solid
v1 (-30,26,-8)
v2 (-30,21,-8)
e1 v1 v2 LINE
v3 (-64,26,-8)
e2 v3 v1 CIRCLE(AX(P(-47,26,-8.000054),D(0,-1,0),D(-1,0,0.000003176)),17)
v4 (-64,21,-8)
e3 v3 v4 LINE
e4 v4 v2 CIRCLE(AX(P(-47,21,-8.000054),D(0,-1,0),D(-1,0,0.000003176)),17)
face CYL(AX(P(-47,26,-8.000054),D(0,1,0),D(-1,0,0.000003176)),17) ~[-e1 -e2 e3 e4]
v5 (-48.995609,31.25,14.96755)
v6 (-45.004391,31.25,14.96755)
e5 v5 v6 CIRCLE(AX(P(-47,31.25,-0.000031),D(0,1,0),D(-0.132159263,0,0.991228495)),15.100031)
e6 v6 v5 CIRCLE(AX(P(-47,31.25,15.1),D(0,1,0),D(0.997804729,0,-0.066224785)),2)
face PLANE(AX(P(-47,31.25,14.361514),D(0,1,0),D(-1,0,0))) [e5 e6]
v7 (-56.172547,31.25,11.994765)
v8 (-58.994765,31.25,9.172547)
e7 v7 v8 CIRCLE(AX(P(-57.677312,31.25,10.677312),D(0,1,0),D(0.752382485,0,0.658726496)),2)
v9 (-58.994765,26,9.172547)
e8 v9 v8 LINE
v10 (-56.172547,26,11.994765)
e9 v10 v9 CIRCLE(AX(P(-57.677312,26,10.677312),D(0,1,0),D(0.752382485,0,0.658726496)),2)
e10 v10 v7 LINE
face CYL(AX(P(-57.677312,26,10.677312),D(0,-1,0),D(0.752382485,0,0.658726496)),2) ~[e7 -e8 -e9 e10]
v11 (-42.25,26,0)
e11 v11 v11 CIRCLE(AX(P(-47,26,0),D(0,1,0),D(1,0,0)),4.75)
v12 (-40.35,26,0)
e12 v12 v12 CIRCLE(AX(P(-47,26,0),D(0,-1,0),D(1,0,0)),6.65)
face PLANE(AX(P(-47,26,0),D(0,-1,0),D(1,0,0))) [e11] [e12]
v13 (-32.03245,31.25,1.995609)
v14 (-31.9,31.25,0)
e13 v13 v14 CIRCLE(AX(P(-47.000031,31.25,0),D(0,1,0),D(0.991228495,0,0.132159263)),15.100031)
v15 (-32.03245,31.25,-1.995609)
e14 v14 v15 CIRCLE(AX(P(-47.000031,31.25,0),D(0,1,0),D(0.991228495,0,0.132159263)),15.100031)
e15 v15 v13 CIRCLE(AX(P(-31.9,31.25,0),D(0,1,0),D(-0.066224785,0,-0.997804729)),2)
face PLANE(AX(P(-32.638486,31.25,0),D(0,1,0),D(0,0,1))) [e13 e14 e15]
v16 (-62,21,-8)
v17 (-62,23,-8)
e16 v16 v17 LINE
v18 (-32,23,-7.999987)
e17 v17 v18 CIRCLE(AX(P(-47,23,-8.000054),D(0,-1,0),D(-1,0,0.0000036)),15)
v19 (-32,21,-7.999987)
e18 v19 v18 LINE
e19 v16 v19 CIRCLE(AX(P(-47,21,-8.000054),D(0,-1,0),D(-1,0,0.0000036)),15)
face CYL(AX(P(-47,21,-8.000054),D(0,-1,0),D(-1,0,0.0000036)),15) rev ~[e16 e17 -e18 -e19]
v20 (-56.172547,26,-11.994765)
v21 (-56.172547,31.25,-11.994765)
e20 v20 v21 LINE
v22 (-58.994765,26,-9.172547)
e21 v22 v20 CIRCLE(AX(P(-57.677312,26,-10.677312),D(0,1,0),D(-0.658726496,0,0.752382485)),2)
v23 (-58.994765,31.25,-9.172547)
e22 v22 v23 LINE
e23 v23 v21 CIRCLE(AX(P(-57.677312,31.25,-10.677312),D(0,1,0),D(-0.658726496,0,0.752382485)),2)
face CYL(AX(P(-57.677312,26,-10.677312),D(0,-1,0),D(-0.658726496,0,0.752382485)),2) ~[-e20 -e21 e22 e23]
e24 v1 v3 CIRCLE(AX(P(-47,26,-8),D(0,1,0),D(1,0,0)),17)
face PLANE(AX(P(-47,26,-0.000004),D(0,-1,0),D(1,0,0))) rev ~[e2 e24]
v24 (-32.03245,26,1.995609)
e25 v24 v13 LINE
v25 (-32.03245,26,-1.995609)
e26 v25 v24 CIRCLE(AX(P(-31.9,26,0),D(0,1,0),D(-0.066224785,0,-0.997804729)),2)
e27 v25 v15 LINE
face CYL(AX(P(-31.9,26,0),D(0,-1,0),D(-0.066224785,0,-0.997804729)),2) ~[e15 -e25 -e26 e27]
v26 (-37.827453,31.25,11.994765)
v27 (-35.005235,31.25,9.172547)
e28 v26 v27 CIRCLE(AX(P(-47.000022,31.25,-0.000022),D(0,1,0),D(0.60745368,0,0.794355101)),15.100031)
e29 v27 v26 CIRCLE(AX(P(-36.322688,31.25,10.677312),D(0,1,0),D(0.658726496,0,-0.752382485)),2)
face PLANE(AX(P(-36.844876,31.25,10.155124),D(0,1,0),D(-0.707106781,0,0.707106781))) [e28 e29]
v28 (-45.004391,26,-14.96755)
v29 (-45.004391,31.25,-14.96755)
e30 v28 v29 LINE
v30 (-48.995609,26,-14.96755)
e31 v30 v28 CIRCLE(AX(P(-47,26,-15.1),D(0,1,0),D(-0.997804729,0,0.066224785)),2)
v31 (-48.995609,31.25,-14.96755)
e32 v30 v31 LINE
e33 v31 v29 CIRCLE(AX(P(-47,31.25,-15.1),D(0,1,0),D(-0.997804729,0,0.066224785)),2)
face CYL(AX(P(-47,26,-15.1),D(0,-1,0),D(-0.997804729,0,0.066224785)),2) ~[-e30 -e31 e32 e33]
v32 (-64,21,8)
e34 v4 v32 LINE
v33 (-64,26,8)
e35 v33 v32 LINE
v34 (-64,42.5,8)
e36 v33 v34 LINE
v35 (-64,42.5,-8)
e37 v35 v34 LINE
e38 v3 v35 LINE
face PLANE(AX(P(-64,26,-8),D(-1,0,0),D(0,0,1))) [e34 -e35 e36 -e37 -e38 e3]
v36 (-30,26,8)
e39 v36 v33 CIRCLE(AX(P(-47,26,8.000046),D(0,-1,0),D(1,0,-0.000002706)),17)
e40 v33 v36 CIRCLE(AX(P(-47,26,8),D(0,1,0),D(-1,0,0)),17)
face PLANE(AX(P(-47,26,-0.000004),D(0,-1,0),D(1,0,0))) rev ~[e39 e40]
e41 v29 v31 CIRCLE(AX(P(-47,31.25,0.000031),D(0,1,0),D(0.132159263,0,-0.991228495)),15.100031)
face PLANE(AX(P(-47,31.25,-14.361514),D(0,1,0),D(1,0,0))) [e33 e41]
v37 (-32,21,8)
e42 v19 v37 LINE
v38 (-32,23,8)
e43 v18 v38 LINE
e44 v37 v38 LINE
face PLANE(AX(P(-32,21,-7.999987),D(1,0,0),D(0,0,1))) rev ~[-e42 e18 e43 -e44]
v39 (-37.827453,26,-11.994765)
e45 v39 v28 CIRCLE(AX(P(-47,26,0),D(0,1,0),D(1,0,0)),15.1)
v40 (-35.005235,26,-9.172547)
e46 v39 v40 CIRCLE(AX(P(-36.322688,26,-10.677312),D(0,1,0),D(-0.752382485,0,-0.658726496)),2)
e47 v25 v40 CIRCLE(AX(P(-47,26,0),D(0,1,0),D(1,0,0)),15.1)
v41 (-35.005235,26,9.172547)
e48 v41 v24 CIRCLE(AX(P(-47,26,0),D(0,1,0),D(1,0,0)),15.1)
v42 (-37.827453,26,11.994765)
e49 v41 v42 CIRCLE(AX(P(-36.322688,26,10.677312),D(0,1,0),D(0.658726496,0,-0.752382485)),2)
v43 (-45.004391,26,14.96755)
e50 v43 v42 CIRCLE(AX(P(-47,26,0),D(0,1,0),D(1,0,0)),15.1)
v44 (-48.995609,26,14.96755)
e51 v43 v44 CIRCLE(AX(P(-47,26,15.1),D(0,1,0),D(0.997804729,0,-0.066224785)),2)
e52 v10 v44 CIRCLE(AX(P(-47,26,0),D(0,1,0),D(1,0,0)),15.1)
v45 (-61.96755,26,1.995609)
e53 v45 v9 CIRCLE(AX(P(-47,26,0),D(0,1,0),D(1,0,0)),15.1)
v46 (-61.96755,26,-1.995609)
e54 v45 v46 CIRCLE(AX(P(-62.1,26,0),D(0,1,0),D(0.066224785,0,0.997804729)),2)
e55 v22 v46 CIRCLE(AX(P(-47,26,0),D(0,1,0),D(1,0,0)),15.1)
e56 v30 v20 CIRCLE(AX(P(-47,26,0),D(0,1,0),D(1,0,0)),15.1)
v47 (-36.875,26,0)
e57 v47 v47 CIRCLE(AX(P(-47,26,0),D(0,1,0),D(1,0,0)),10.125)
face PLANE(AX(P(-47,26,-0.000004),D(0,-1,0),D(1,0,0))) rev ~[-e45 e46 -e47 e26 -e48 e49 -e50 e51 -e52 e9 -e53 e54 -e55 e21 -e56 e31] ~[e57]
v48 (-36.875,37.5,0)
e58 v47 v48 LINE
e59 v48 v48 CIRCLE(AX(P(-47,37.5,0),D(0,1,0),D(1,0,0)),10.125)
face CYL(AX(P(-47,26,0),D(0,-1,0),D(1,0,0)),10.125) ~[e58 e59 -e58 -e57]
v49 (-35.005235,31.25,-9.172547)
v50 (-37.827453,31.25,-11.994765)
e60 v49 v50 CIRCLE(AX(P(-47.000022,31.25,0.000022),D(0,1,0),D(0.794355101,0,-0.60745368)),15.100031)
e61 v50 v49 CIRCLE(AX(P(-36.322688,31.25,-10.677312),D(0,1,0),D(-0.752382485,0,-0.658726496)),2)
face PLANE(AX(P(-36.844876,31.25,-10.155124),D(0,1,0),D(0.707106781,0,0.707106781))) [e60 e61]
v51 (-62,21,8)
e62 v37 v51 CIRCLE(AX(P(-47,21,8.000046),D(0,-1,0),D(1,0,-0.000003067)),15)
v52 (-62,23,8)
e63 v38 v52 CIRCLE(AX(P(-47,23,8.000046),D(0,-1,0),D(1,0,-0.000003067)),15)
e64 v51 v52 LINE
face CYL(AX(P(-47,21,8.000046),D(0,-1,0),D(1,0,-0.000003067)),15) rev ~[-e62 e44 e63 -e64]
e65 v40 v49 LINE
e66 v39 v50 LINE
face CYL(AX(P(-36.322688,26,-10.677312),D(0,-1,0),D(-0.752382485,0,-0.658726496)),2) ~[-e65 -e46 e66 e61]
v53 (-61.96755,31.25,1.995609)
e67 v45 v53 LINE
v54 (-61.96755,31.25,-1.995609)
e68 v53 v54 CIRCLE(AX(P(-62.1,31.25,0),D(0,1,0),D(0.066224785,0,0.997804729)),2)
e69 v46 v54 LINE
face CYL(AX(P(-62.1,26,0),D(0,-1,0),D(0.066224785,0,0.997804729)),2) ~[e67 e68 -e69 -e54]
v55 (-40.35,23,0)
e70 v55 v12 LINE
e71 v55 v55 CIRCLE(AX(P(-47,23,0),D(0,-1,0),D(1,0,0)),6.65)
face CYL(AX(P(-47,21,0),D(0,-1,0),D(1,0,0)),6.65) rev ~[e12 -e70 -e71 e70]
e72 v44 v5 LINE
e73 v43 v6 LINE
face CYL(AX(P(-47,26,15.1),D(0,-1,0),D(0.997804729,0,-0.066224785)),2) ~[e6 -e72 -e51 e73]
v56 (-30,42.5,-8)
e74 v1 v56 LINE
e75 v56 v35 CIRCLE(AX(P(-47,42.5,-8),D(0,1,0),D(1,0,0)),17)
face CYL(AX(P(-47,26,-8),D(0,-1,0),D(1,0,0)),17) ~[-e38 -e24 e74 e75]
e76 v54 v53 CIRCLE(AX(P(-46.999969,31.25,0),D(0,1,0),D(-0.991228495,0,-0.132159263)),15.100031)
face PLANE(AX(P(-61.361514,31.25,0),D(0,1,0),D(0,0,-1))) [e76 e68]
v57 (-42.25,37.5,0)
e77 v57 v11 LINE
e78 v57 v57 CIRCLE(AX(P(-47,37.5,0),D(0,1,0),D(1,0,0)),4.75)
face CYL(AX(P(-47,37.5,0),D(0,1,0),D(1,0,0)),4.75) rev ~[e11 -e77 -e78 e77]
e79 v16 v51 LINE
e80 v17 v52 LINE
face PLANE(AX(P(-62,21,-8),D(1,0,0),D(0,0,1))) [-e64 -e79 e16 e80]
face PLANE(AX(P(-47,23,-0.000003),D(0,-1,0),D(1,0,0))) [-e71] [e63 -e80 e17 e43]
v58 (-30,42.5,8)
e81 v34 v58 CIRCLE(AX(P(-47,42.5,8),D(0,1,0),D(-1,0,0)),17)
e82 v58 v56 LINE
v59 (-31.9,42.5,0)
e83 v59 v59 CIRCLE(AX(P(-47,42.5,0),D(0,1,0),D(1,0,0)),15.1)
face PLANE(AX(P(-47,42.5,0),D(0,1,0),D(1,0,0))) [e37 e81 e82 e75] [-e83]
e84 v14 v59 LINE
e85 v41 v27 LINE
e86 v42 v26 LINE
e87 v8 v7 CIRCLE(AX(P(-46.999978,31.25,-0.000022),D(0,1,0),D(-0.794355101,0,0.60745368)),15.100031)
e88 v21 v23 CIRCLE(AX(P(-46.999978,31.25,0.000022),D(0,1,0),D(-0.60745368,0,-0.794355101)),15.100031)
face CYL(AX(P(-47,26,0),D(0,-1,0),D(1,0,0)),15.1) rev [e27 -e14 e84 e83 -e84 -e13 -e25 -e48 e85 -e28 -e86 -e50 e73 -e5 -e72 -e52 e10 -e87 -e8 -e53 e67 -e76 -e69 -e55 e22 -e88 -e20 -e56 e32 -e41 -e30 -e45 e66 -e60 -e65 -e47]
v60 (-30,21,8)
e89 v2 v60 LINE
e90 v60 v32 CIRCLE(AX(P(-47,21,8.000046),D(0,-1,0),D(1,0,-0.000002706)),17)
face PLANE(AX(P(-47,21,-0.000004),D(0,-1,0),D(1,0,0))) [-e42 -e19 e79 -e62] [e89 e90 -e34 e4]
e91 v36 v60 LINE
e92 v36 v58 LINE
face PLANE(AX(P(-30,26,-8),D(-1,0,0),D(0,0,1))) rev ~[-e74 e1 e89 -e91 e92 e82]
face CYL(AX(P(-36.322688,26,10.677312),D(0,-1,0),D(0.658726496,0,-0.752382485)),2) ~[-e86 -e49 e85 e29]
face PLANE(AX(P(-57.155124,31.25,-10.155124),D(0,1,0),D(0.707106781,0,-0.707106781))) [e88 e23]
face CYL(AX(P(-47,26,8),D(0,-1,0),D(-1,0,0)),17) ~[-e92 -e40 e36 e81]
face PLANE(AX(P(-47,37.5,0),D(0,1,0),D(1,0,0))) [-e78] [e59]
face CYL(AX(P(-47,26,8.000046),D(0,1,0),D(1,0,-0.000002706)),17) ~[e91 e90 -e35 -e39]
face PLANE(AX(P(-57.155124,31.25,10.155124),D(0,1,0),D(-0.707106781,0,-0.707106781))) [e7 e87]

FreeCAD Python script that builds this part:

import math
import FreeCAD as App
import Part
import Sketcher
from FreeCAD import Vector

doc = App.newDocument("Part")
params = doc.addObject("Spreadsheet::Sheet", "Params")
for row, (alias, value) in enumerate([
    ("sketch1_radius", "17 mm"),
    ("sketch1_diameter", "30.2 mm"),
    ("sketch1_height", "16 mm"),
    ("pad1_length", "16.5 mm"),
    ("sketch2_radius", "2 mm"),
    ("pad2_length", "5.25 mm"),
    ("sketch3_radius", "17 mm"),
    ("sketch3_height", "16 mm"),
    ("pad3_length", "5 mm"),
    ("sketch4_diameter", "20.25 mm"),
    ("pad4_length", "11.5 mm"),
    ("sketch5_diameter", "9.5 mm"),
    ("sketch6_diameter", "13.3 mm"),
    ("pocket2_length", "5 mm"),
    ("sketch7_radius", "15 mm"),
    ("sketch7_height", "16 mm"),
    ("pocket3_length", "2 mm"),
], start=1):
    params.set(f"A{row}", alias)
    params.set(f"B{row}", "=" + value)
    params.setAlias(f"B{row}", alias)

body = doc.addObject("PartDesign::Body", "Body")

sketch1 = body.newObject("Sketcher::SketchObject", "Sketch")
sketch1.AttachmentSupport = (doc.getObject("XY_Plane"), [""])
sketch1.MapMode = "FlatFace"
sketch1.addGeometry([
    Part.ArcOfCircle(Part.Circle(Vector(0, 8, 0), Vector(0, 0, 1), 17), math.radians(0), math.radians(180)),
    Part.LineSegment(Vector(-17, 8, 0), Vector(-17, -8, 0)),
    Part.ArcOfCircle(Part.Circle(Vector(0, -8, 0), Vector(0, 0, 1), 17), math.radians(180), math.radians(360)),
    Part.LineSegment(Vector(17, -8, 0), Vector(17, 8, 0)),
    Part.Circle(Vector(0, 0, 0), Vector(0, 0, 1), 15),
], False)
sketch1.addConstraint([
    Sketcher.Constraint("Tangent", 0, 2, 1, 1),
    Sketcher.Constraint("Tangent", 1, 2, 2, 1),
    Sketcher.Constraint("Tangent", 2, 2, 3, 1),
    Sketcher.Constraint("Tangent", 3, 2, 0, 1),
    Sketcher.Constraint("Vertical", 1),
    Sketcher.Constraint("Vertical", 3),
    Sketcher.Constraint("Coincident", 4, 3, -1, 1),
    Sketcher.Constraint("Symmetric", 0, 3, 2, 3, -1, 1),
    Sketcher.Constraint("Radius", 0, 17.0),
    Sketcher.Constraint("Diameter", 4, 30.2),
    Sketcher.Constraint("DistanceY", 1, 2, 1, 1, 16.0),
])
sketch1.setExpression("Constraints[8]", "Params.sketch1_radius")
sketch1.setExpression("Constraints[9]", "Params.sketch1_diameter")
sketch1.setExpression("Constraints[10]", "Params.sketch1_height")
pad1 = body.newObject("PartDesign::Pad", "Pad")
pad1.Profile = sketch1
pad1.setExpression("Length", "Params.pad1_length")

sketch2 = body.newObject("Sketcher::SketchObject", "Sketch001")
sketch2.AttachmentSupport = (doc.getObject("XY_Plane"), [""])
sketch2.MapMode = "FlatFace"
sketch2.addGeometry([
    Part.ArcOfCircle(Part.Circle(Vector(0, 0, 0), Vector(0, 0, 1), 15.1), math.radians(82.41), math.radians(97.59)),
    Part.ArcOfCircle(Part.Circle(Vector(0, 15.1, 0), Vector(0, 0, 1), 2), math.radians(-176), math.radians(-4)),
], False)
sketch2.addConstraint([
    Sketcher.Constraint("Coincident", 0, 1, 1, 2),
    Sketcher.Constraint("Coincident", 1, 1, 0, 2),
    Sketcher.Constraint("Symmetric", 0, 1, 1, 1, -2),
    Sketcher.Constraint("Radius", 1, 2.0),
    Sketcher.Constraint("DistanceY", -1, 1, 1, 3, 15.1),
    Sketcher.Constraint("Radius", 0, 15.100031),
    Sketcher.Constraint("DistanceX", -1, 1, 0, 1, 1.995609),
])
sketch2.setExpression("Constraints[3]", "Params.sketch2_radius")
pad2 = body.newObject("PartDesign::Pad", "Pad001")
pad2.Profile = sketch2
pad2.setExpression("Length", "Params.pad2_length")
doc.recompute()

polarpattern = body.newObject("PartDesign::PolarPattern", "PolarPattern")
polarpattern.Originals = [pad2]
polarpattern.Axis = (doc.getObject("Z_Axis"), [""])
polarpattern.Angle = 360
polarpattern.Occurrences = 8
body.Tip = polarpattern

sketch3 = body.newObject("Sketcher::SketchObject", "Sketch002")
sketch3.AttachmentSupport = (doc.getObject("XY_Plane"), [""])
sketch3.MapMode = "FlatFace"
sketch3.addGeometry([
    Part.ArcOfCircle(Part.Circle(Vector(0, 8, 0), Vector(0, 0, 1), 17), math.radians(0), math.radians(180)),
    Part.LineSegment(Vector(17, 8, 0), Vector(17, -8, 0)),
    Part.ArcOfCircle(Part.Circle(Vector(0, -8, 0), Vector(0, 0, 1), 17), math.radians(180), math.radians(360)),
    Part.LineSegment(Vector(-17, -8, 0), Vector(-17, 8, 0)),
], False)
sketch3.addConstraint([
    Sketcher.Constraint("Coincident", 0, 1, 1, 1),
    Sketcher.Constraint("Coincident", 1, 2, 2, 2),
    Sketcher.Constraint("Coincident", 2, 1, 3, 1),
    Sketcher.Constraint("Coincident", 3, 2, 0, 2),
    Sketcher.Constraint("Vertical", 1),
    Sketcher.Constraint("Vertical", 3),
    Sketcher.Constraint("Symmetric", 0, 3, 2, 3, -1, 1),
    Sketcher.Constraint("Horizontal", 1, 2, 2, 1),
    Sketcher.Constraint("Horizontal", 0, 1, 3, 2),
    Sketcher.Constraint("Radius", 0, 17.0),
    Sketcher.Constraint("DistanceY", 1, 2, 1, 1, 16.0),
    Sketcher.Constraint("DistanceY", -1, 1, 0, 1, 8.0),
    Sketcher.Constraint("DistanceY", 2, 3, 0, 3, 16.0001),
])
sketch3.setExpression("Constraints[9]", "Params.sketch3_radius")
sketch3.setExpression("Constraints[10]", "Params.sketch3_height")
pad3 = body.newObject("PartDesign::Pad", "Pad002")
pad3.Profile = sketch3
pad3.setExpression("Length", "Params.pad3_length")
pad3.Reversed = True

sketch4 = body.newObject("Sketcher::SketchObject", "Sketch003")
sketch4.AttachmentSupport = (doc.getObject("XY_Plane"), [""])
sketch4.MapMode = "FlatFace"
sketch4.addGeometry(Part.Circle(Vector(0, 0, 0), Vector(0, 0, 1), 10), False)
sketch4.addConstraint([
    Sketcher.Constraint("Coincident", 0, 3, -1, 1),
    Sketcher.Constraint("Diameter", 0, 20.25),
])
sketch4.setExpression("Constraints[1]", "Params.sketch4_diameter")
pad4 = body.newObject("PartDesign::Pad", "Pad003")
pad4.Profile = sketch4
pad4.setExpression("Length", "Params.pad4_length")

sketch5 = body.newObject("Sketcher::SketchObject", "Sketch004")
sketch5.AttachmentSupport = (doc.getObject("XY_Plane"), [""])
sketch5.MapMode = "FlatFace"
sketch5.AttachmentOffset = App.Placement(Vector(0, 0, 11.5), App.Rotation())
sketch5.addGeometry(Part.Circle(Vector(0, 0, 0), Vector(0, 0, 1), 4.8), False)
sketch5.addConstraint([
    Sketcher.Constraint("Coincident", 0, 3, -1, 1),
    Sketcher.Constraint("Diameter", 0, 9.5),
])
sketch5.setExpression("Constraints[1]", "Params.sketch5_diameter")
pocket1 = body.newObject("PartDesign::Pocket", "Pocket")
pocket1.Profile = sketch5
pocket1.Type = "ThroughAll"

sketch6 = body.newObject("Sketcher::SketchObject", "Sketch005")
sketch6.AttachmentSupport = (doc.getObject("XY_Plane"), [""])
sketch6.MapMode = "FlatFace"
sketch6.AttachmentOffset = App.Placement(Vector(0, 0, -5), App.Rotation())
sketch6.addGeometry(Part.Circle(Vector(0, 0, 0), Vector(0, 0, 1), 7), False)
sketch6.addConstraint([
    Sketcher.Constraint("Coincident", 0, 3, -1, 1),
    Sketcher.Constraint("Diameter", 0, 13.3),
])
sketch6.setExpression("Constraints[1]", "Params.sketch6_diameter")
pocket2 = body.newObject("PartDesign::Pocket", "Pocket001")
pocket2.Profile = sketch6
pocket2.setExpression("Length", "Params.pocket2_length")
pocket2.Reversed = True

sketch7 = body.newObject("Sketcher::SketchObject", "Sketch006")
sketch7.AttachmentSupport = (doc.getObject("XY_Plane"), [""])
sketch7.MapMode = "FlatFace"
sketch7.AttachmentOffset = App.Placement(Vector(0, 0, -5), App.Rotation())
sketch7.addGeometry([
    Part.ArcOfCircle(Part.Circle(Vector(0, -8, 0), Vector(0, 0, 1), 15), math.radians(180), math.radians(360)),
    Part.LineSegment(Vector(-15, -8, 0), Vector(-15, 8, 0)),
    Part.ArcOfCircle(Part.Circle(Vector(0, 8, 0), Vector(0, 0, 1), 15), math.radians(0), math.radians(180)),
    Part.LineSegment(Vector(15, 8, 0), Vector(15, -8, 0)),
], False)
sketch7.addConstraint([
    Sketcher.Constraint("Coincident", 0, 1, 1, 1),
    Sketcher.Constraint("Coincident", 1, 2, 2, 2),
    Sketcher.Constraint("Coincident", 2, 1, 3, 1),
    Sketcher.Constraint("Coincident", 3, 2, 0, 2),
    Sketcher.Constraint("Vertical", 1),
    Sketcher.Constraint("Vertical", 3),
    Sketcher.Constraint("Symmetric", 0, 3, 2, 3, -1, 1),
    Sketcher.Constraint("Horizontal", 0, 1, 3, 2),
    Sketcher.Constraint("Radius", 0, 15.0),
    Sketcher.Constraint("DistanceY", 1, 1, 1, 2, 16.0),
    Sketcher.Constraint("DistanceY", 0, 1, -1, 1, 8.0),
    Sketcher.Constraint("DistanceY", 0, 3, 2, 3, 16.0001),
    Sketcher.Constraint("DistanceY", 3, 2, 3, 1, 15.999987),
])
sketch7.setExpression("Constraints[8]", "Params.sketch7_radius")
sketch7.setExpression("Constraints[9]", "Params.sketch7_height")
pocket3 = body.newObject("PartDesign::Pocket", "Pocket002")
pocket3.Profile = sketch7
pocket3.setExpression("Length", "Params.pocket3_length")
pocket3.Reversed = True
body2 = doc.addObject("PartDesign::Body", "Body001")
doc.recompute()

body.Placement = App.Placement(Vector(-47, 26, 0), App.Rotation(Vector(1, 0, 0), 270))
boolean = body2.newObject("PartDesign::Boolean", "Boolean")
boolean.Type = "Fuse"
boolean.addObjects([body])

doc.recompute()
